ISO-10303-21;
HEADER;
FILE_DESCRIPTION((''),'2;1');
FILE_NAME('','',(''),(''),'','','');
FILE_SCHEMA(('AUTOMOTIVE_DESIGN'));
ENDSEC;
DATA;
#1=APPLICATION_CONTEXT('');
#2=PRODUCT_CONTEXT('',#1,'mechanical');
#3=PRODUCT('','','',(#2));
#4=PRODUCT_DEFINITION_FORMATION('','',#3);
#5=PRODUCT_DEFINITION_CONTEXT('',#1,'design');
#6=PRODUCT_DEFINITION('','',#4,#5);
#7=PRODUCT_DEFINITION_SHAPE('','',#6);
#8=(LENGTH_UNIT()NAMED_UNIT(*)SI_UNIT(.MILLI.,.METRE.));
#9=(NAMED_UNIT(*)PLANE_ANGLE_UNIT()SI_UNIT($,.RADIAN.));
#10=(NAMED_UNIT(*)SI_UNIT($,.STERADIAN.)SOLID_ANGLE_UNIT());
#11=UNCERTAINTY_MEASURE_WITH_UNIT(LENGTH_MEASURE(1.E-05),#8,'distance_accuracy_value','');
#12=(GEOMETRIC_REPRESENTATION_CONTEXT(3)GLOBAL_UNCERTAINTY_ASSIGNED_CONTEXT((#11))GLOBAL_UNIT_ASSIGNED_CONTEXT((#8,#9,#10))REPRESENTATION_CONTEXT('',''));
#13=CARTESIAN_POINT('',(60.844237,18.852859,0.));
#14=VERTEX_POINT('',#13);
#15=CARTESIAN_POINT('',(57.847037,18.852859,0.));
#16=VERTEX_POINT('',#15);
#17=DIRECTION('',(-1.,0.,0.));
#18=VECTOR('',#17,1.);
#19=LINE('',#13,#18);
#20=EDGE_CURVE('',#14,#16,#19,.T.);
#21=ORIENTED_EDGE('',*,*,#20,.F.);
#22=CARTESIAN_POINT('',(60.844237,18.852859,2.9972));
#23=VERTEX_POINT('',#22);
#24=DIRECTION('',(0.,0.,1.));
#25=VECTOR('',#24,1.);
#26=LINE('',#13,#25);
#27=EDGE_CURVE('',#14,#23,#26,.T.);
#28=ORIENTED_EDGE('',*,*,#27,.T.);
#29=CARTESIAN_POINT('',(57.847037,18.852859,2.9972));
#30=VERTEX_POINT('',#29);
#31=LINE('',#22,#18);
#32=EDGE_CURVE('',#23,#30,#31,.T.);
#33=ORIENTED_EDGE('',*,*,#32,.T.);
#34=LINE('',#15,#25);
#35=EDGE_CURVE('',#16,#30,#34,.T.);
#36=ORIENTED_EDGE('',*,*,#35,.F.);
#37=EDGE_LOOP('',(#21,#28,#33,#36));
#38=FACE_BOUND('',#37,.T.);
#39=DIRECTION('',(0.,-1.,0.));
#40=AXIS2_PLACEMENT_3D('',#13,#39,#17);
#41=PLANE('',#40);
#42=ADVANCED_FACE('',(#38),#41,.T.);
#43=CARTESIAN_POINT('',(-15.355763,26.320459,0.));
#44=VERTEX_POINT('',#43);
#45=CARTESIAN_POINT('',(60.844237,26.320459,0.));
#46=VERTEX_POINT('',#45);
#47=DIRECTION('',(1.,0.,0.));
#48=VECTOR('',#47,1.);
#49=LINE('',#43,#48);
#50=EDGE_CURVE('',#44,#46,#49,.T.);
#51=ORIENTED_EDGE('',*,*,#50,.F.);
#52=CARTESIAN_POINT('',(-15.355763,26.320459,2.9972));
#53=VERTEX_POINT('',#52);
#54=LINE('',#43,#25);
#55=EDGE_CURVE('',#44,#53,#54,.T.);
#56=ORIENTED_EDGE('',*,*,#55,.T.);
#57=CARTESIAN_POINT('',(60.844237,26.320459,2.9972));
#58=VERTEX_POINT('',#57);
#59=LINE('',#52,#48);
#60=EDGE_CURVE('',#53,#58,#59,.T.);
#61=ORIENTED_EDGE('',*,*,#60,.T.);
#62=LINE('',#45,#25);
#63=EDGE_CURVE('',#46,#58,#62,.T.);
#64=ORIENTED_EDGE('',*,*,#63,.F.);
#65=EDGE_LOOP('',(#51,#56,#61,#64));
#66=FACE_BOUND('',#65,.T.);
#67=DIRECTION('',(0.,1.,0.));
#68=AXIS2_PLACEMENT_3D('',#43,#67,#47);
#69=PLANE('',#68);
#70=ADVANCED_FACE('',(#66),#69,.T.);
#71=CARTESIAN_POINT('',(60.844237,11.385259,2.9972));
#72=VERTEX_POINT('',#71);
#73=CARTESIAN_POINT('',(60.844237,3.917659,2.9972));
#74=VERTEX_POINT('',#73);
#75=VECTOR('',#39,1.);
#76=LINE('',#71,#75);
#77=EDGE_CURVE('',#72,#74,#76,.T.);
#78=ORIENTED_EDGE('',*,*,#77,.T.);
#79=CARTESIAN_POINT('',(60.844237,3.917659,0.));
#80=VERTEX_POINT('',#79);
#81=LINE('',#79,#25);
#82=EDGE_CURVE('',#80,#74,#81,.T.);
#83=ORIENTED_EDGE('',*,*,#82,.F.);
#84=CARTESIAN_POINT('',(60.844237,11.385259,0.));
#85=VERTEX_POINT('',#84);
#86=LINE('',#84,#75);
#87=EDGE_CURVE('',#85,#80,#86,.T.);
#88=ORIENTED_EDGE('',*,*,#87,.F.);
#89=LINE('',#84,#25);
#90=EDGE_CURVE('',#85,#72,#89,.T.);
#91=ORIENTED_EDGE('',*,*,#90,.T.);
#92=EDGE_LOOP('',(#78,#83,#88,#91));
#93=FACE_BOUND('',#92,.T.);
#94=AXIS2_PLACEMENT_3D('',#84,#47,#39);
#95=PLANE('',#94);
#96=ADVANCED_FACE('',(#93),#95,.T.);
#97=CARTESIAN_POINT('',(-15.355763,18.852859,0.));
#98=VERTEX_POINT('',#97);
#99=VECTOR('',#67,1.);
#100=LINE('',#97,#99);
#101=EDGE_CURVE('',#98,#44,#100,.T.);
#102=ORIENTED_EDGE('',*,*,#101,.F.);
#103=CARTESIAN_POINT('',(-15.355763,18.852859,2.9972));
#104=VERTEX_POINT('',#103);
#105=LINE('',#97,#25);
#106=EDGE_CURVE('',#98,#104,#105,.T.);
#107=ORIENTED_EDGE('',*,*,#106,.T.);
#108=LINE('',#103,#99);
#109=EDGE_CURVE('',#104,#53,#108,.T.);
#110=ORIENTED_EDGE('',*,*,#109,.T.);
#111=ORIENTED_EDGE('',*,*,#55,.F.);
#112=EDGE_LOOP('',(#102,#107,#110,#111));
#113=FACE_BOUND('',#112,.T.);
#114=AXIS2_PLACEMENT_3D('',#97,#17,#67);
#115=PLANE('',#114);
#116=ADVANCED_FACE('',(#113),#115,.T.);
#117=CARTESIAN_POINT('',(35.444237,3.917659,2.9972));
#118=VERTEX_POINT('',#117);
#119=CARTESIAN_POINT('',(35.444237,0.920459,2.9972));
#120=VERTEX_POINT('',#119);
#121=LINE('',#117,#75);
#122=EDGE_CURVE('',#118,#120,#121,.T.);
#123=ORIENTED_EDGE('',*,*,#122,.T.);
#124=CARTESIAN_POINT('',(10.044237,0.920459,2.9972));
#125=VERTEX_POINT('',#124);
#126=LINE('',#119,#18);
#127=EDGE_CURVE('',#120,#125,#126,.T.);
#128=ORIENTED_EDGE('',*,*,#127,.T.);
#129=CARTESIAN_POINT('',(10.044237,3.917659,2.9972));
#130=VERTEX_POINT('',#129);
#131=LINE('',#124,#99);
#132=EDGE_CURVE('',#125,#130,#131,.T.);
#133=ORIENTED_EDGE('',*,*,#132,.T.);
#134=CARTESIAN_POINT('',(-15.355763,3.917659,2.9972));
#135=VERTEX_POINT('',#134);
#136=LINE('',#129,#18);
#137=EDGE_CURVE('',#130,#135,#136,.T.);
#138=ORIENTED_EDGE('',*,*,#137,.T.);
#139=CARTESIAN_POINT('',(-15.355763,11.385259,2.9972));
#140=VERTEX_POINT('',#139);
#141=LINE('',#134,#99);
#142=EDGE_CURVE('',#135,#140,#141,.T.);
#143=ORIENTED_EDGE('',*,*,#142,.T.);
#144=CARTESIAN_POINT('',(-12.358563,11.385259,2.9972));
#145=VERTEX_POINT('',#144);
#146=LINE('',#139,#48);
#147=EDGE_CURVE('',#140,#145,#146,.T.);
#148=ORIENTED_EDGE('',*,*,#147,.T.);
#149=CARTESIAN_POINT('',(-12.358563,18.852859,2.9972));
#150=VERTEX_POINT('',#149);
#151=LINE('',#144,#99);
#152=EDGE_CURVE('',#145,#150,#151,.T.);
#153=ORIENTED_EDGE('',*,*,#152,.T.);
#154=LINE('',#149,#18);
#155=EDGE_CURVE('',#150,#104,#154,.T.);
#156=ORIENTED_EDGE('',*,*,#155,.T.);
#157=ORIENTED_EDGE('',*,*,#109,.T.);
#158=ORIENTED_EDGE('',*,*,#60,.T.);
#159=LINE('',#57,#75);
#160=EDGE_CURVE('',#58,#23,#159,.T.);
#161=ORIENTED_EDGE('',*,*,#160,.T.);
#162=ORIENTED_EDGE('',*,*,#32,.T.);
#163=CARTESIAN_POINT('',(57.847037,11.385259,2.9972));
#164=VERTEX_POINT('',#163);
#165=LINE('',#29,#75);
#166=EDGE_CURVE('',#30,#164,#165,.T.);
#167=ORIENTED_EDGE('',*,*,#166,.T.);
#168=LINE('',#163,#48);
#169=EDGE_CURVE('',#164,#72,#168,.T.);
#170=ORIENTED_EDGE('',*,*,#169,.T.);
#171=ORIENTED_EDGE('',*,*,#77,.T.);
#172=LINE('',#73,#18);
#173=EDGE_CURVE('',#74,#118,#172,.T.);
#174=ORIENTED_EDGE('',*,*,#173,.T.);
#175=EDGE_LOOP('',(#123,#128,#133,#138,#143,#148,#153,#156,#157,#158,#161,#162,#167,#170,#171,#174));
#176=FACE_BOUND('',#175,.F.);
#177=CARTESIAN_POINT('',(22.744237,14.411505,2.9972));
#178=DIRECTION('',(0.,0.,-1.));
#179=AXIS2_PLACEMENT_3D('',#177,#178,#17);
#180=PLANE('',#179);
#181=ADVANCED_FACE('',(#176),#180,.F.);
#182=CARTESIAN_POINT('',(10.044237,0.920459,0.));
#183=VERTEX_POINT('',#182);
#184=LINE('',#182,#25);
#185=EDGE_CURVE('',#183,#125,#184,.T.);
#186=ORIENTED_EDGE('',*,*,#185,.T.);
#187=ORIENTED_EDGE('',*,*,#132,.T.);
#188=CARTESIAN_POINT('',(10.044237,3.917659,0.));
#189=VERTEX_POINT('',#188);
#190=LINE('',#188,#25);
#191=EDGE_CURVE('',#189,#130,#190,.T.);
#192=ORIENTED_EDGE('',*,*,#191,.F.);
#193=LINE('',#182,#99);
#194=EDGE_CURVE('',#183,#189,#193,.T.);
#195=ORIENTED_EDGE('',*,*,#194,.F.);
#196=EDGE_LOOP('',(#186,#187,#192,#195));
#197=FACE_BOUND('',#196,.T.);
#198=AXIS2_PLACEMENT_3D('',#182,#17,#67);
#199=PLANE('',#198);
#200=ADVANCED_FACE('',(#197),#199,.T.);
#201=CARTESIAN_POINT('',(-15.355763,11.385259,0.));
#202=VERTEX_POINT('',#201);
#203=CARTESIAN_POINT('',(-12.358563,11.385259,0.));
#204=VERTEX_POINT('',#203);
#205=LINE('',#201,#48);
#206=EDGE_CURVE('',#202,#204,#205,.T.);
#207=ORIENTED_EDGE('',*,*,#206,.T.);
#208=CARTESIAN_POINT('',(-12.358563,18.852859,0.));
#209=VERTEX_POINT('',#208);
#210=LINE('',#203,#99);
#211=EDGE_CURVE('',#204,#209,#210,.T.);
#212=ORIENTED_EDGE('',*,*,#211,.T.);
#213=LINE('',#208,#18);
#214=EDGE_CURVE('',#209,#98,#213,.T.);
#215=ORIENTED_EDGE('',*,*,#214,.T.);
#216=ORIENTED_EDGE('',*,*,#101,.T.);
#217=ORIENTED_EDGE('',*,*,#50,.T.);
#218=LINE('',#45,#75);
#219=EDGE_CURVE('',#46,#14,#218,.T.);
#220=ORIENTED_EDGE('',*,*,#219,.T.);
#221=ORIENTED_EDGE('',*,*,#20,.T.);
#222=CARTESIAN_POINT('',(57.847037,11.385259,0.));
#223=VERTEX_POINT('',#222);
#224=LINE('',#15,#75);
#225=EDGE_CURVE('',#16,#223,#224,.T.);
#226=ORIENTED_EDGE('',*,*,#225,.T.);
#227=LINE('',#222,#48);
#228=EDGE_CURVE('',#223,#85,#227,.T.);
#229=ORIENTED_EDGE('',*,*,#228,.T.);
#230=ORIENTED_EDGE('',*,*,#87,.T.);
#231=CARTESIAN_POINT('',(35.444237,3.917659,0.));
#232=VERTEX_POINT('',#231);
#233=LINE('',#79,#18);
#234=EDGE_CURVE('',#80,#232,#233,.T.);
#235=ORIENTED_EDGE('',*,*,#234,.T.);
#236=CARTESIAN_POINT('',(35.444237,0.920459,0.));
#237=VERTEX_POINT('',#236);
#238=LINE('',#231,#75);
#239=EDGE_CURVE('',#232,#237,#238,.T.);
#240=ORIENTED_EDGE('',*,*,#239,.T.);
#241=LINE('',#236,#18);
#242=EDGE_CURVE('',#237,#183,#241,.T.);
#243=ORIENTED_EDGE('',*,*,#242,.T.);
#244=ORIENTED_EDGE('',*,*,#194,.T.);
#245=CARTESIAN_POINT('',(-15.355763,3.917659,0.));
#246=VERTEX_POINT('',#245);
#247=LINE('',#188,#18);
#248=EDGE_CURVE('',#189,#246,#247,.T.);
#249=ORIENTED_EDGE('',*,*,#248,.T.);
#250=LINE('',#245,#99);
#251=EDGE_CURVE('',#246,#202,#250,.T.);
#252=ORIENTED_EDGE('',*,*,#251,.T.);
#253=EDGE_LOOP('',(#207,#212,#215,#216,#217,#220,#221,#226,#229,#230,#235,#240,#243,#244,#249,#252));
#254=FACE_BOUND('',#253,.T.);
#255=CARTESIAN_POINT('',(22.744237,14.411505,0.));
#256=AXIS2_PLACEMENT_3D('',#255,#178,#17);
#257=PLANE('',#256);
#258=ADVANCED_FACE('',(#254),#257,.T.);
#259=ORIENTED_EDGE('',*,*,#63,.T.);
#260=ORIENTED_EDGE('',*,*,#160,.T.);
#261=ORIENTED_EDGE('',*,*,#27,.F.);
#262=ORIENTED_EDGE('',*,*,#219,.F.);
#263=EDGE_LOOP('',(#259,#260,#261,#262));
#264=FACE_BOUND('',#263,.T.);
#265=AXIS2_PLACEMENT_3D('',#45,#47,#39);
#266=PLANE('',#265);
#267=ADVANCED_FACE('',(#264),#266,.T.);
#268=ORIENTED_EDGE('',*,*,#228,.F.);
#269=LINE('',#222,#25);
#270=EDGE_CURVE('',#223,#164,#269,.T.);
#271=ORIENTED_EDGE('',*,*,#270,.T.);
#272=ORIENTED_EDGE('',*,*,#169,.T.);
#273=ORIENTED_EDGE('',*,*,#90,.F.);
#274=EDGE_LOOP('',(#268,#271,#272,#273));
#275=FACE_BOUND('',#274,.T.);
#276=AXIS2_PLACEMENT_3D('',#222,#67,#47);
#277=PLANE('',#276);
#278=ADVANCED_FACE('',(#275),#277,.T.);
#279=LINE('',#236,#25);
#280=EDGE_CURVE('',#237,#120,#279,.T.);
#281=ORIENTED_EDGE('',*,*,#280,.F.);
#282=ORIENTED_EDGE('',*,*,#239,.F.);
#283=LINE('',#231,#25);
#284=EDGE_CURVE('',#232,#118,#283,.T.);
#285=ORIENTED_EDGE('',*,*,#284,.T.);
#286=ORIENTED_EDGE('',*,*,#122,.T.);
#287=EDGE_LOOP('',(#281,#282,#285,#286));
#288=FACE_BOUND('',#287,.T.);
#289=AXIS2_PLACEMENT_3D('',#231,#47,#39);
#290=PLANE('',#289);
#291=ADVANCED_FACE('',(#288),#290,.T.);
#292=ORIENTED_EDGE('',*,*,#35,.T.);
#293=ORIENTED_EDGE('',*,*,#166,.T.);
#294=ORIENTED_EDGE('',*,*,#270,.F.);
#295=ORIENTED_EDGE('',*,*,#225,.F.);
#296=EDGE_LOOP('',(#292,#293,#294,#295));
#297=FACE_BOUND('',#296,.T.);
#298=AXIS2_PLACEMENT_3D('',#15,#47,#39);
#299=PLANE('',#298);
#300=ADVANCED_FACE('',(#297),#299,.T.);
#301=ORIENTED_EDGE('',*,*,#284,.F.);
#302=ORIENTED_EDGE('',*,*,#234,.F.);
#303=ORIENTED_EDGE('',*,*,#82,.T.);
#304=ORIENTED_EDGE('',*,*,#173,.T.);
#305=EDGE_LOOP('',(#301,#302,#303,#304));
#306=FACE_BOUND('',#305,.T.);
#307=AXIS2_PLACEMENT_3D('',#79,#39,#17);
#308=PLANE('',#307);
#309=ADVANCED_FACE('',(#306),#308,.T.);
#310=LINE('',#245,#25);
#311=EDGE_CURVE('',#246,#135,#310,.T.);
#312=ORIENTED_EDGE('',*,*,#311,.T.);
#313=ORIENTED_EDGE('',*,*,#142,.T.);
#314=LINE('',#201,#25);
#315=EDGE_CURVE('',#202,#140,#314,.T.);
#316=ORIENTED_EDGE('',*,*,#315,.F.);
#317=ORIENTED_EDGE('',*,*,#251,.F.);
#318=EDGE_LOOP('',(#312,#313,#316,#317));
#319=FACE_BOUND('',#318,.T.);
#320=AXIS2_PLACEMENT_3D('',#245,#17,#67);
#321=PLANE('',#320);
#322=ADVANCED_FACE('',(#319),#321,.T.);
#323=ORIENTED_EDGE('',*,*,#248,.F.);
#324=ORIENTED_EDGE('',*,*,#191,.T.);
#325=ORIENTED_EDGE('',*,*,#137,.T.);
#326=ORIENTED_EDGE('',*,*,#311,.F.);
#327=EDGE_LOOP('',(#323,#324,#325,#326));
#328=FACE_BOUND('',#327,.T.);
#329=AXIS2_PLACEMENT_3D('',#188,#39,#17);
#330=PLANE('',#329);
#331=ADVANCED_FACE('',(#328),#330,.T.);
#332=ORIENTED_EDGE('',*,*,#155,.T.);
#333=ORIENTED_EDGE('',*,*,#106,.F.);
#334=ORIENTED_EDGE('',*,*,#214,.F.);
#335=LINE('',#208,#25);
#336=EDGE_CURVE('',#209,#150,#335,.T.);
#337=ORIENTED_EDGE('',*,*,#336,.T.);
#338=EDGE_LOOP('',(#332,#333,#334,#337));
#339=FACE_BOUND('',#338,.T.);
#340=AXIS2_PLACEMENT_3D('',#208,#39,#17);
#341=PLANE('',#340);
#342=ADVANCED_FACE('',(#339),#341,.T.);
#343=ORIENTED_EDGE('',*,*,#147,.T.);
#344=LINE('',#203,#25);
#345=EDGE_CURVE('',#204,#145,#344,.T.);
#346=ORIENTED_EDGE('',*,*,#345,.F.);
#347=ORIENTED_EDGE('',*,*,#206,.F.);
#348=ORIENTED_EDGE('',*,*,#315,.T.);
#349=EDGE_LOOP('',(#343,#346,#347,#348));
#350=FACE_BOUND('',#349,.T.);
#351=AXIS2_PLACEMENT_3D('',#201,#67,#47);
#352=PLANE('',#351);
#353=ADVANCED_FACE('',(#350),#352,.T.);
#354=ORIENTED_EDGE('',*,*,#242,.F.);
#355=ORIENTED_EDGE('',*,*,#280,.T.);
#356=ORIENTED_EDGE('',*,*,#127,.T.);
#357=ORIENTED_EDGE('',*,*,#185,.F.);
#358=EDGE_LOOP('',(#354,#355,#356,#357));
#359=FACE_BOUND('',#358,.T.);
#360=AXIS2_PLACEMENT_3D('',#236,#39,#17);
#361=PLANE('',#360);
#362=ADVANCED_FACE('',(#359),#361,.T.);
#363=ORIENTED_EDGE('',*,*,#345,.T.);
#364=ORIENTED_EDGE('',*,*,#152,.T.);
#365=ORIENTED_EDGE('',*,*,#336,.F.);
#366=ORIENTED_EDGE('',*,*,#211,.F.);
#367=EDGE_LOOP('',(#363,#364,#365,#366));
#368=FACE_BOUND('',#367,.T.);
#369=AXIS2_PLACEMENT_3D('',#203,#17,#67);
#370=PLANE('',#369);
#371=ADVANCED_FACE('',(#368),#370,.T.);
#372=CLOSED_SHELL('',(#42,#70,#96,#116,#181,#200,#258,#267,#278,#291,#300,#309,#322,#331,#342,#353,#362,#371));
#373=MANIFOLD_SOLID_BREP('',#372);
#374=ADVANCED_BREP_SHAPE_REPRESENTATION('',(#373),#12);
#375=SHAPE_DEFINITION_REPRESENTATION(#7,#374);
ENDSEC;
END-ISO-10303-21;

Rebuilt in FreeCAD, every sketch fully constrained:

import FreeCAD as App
import Part
import Sketcher
Q = App.Units.Quantity

doc = App.newDocument("Part")
body = doc.addObject("PartDesign::Body", "Body")

# Sketch on XY plane
sketch1 = doc.addObject("Sketcher::SketchObject", "Sketch")
body.addObject(sketch1)
sketch1.AttachmentSupport = (doc.XY_Plane, [""])
sketch1.MapMode = "FlatFace"
sketch1.addGeometry([
    Part.LineSegment(App.Vector(-15.355763, 26.320459, 0), App.Vector(-15.355763, 18.852859, 0)),  # 0
    Part.LineSegment(App.Vector(-15.355763, 18.852859, 0), App.Vector(-12.358563, 18.852859, 0)),  # 1
    Part.LineSegment(App.Vector(-12.358563, 18.852859, 0), App.Vector(-12.358563, 11.385259, 0)),  # 2
    Part.LineSegment(App.Vector(-12.358563, 11.385259, 0), App.Vector(-15.355763, 11.385259, 0)),  # 3
    Part.LineSegment(App.Vector(-15.355763, 11.385259, 0), App.Vector(-15.355763, 3.917659, 0)),  # 4
    Part.LineSegment(App.Vector(-15.355763, 3.917659, 0), App.Vector(10.044237, 3.917659, 0)),  # 5
    Part.LineSegment(App.Vector(10.044237, 3.917659, 0), App.Vector(10.044237, 0.920459, 0)),  # 6
    Part.LineSegment(App.Vector(10.044237, 0.920459, 0), App.Vector(35.444237, 0.920459, 0)),  # 7
    Part.LineSegment(App.Vector(35.444237, 0.920459, 0), App.Vector(35.444237, 3.917659, 0)),  # 8
    Part.LineSegment(App.Vector(35.444237, 3.917659, 0), App.Vector(60.844237, 3.917659, 0)),  # 9
    Part.LineSegment(App.Vector(60.844237, 3.917659, 0), App.Vector(60.844237, 11.385259, 0)),  # 10
    Part.LineSegment(App.Vector(60.844237, 11.385259, 0), App.Vector(57.847037, 11.385259, 0)),  # 11
    Part.LineSegment(App.Vector(57.847037, 11.385259, 0), App.Vector(57.847037, 18.852859, 0)),  # 12
    Part.LineSegment(App.Vector(57.847037, 18.852859, 0), App.Vector(60.844237, 18.852859, 0)),  # 13
    Part.LineSegment(App.Vector(60.844237, 18.852859, 0), App.Vector(60.844237, 26.320459, 0)),  # 14
    Part.LineSegment(App.Vector(60.844237, 26.320459, 0), App.Vector(-15.355763, 26.320459, 0)),  # 15
], False)
sketch1.addConstraint([
    Sketcher.Constraint("Coincident", 0, 2, 1, 1),
    Sketcher.Constraint("Coincident", 1, 2, 2, 1),
    Sketcher.Constraint("Coincident", 2, 2, 3, 1),
    Sketcher.Constraint("Coincident", 3, 2, 4, 1),
    Sketcher.Constraint("Coincident", 4, 2, 5, 1),
    Sketcher.Constraint("Coincident", 5, 2, 6, 1),
    Sketcher.Constraint("Coincident", 6, 2, 7, 1),
    Sketcher.Constraint("Coincident", 7, 2, 8, 1),
    Sketcher.Constraint("Coincident", 8, 2, 9, 1),
    Sketcher.Constraint("Coincident", 9, 2, 10, 1),
    Sketcher.Constraint("Coincident", 10, 2, 11, 1),
    Sketcher.Constraint("Coincident", 11, 2, 12, 1),
    Sketcher.Constraint("Coincident", 12, 2, 13, 1),
    Sketcher.Constraint("Coincident", 13, 2, 14, 1),
    Sketcher.Constraint("Coincident", 14, 2, 15, 1),
    Sketcher.Constraint("Coincident", 15, 2, 0, 1),
    Sketcher.Constraint("Vertical", 0),
    Sketcher.Constraint("Horizontal", 1),
    Sketcher.Constraint("Vertical", 2),
    Sketcher.Constraint("Horizontal", 3),
    Sketcher.Constraint("Vertical", 4),
    Sketcher.Constraint("Horizontal", 5),
    Sketcher.Constraint("Vertical", 6),
    Sketcher.Constraint("Horizontal", 7),
    Sketcher.Constraint("Vertical", 8),
    Sketcher.Constraint("Horizontal", 9),
    Sketcher.Constraint("Vertical", 10),
    Sketcher.Constraint("Horizontal", 11),
    Sketcher.Constraint("Vertical", 12),
    Sketcher.Constraint("Horizontal", 13),
    Sketcher.Constraint("Vertical", 14),
    Sketcher.Constraint("Horizontal", 15),
    Sketcher.Constraint("Horizontal", 5, 2, 8, 2),
    Sketcher.Constraint("Horizontal", 3, 2, 10, 2),
    Sketcher.Constraint("Horizontal", 1, 2, 12, 2),
    Sketcher.Constraint("Vertical", 0, 2, 3, 2),
    Sketcher.Constraint("Vertical", 10, 2, 13, 2),
    Sketcher.Constraint("Equal", 5, 7),
    Sketcher.Constraint("Equal", 7, 9),
    Sketcher.Constraint("Equal", 3, 11),
    Sketcher.Constraint("Equal", 0, 2),
    Sketcher.Constraint("Equal", 2, 4),
    Sketcher.Constraint("Equal", 13, 6),
    Sketcher.Constraint("DistanceX", 5, 1, 5, 2, Q("1 in")),
    Sketcher.Constraint("DistanceX", 1, 1, 1, 2, Q("0.118 in")),
    Sketcher.Constraint("DistanceY", 0, 2, 0, 1, Q("0.294 in")),
    Sketcher.Constraint("DistanceY", -1, 1, 0, 2, Q("18.852859 mm")),
    Sketcher.Constraint("DistanceX", 0, 2, -1, 1, Q("15.355763 mm")),
])
pad1 = doc.addObject("PartDesign::Pad", "Pad")
body.addObject(pad1)
pad1.Profile = sketch1
pad1.Length = Q("0.118 in")

doc.recompute()
